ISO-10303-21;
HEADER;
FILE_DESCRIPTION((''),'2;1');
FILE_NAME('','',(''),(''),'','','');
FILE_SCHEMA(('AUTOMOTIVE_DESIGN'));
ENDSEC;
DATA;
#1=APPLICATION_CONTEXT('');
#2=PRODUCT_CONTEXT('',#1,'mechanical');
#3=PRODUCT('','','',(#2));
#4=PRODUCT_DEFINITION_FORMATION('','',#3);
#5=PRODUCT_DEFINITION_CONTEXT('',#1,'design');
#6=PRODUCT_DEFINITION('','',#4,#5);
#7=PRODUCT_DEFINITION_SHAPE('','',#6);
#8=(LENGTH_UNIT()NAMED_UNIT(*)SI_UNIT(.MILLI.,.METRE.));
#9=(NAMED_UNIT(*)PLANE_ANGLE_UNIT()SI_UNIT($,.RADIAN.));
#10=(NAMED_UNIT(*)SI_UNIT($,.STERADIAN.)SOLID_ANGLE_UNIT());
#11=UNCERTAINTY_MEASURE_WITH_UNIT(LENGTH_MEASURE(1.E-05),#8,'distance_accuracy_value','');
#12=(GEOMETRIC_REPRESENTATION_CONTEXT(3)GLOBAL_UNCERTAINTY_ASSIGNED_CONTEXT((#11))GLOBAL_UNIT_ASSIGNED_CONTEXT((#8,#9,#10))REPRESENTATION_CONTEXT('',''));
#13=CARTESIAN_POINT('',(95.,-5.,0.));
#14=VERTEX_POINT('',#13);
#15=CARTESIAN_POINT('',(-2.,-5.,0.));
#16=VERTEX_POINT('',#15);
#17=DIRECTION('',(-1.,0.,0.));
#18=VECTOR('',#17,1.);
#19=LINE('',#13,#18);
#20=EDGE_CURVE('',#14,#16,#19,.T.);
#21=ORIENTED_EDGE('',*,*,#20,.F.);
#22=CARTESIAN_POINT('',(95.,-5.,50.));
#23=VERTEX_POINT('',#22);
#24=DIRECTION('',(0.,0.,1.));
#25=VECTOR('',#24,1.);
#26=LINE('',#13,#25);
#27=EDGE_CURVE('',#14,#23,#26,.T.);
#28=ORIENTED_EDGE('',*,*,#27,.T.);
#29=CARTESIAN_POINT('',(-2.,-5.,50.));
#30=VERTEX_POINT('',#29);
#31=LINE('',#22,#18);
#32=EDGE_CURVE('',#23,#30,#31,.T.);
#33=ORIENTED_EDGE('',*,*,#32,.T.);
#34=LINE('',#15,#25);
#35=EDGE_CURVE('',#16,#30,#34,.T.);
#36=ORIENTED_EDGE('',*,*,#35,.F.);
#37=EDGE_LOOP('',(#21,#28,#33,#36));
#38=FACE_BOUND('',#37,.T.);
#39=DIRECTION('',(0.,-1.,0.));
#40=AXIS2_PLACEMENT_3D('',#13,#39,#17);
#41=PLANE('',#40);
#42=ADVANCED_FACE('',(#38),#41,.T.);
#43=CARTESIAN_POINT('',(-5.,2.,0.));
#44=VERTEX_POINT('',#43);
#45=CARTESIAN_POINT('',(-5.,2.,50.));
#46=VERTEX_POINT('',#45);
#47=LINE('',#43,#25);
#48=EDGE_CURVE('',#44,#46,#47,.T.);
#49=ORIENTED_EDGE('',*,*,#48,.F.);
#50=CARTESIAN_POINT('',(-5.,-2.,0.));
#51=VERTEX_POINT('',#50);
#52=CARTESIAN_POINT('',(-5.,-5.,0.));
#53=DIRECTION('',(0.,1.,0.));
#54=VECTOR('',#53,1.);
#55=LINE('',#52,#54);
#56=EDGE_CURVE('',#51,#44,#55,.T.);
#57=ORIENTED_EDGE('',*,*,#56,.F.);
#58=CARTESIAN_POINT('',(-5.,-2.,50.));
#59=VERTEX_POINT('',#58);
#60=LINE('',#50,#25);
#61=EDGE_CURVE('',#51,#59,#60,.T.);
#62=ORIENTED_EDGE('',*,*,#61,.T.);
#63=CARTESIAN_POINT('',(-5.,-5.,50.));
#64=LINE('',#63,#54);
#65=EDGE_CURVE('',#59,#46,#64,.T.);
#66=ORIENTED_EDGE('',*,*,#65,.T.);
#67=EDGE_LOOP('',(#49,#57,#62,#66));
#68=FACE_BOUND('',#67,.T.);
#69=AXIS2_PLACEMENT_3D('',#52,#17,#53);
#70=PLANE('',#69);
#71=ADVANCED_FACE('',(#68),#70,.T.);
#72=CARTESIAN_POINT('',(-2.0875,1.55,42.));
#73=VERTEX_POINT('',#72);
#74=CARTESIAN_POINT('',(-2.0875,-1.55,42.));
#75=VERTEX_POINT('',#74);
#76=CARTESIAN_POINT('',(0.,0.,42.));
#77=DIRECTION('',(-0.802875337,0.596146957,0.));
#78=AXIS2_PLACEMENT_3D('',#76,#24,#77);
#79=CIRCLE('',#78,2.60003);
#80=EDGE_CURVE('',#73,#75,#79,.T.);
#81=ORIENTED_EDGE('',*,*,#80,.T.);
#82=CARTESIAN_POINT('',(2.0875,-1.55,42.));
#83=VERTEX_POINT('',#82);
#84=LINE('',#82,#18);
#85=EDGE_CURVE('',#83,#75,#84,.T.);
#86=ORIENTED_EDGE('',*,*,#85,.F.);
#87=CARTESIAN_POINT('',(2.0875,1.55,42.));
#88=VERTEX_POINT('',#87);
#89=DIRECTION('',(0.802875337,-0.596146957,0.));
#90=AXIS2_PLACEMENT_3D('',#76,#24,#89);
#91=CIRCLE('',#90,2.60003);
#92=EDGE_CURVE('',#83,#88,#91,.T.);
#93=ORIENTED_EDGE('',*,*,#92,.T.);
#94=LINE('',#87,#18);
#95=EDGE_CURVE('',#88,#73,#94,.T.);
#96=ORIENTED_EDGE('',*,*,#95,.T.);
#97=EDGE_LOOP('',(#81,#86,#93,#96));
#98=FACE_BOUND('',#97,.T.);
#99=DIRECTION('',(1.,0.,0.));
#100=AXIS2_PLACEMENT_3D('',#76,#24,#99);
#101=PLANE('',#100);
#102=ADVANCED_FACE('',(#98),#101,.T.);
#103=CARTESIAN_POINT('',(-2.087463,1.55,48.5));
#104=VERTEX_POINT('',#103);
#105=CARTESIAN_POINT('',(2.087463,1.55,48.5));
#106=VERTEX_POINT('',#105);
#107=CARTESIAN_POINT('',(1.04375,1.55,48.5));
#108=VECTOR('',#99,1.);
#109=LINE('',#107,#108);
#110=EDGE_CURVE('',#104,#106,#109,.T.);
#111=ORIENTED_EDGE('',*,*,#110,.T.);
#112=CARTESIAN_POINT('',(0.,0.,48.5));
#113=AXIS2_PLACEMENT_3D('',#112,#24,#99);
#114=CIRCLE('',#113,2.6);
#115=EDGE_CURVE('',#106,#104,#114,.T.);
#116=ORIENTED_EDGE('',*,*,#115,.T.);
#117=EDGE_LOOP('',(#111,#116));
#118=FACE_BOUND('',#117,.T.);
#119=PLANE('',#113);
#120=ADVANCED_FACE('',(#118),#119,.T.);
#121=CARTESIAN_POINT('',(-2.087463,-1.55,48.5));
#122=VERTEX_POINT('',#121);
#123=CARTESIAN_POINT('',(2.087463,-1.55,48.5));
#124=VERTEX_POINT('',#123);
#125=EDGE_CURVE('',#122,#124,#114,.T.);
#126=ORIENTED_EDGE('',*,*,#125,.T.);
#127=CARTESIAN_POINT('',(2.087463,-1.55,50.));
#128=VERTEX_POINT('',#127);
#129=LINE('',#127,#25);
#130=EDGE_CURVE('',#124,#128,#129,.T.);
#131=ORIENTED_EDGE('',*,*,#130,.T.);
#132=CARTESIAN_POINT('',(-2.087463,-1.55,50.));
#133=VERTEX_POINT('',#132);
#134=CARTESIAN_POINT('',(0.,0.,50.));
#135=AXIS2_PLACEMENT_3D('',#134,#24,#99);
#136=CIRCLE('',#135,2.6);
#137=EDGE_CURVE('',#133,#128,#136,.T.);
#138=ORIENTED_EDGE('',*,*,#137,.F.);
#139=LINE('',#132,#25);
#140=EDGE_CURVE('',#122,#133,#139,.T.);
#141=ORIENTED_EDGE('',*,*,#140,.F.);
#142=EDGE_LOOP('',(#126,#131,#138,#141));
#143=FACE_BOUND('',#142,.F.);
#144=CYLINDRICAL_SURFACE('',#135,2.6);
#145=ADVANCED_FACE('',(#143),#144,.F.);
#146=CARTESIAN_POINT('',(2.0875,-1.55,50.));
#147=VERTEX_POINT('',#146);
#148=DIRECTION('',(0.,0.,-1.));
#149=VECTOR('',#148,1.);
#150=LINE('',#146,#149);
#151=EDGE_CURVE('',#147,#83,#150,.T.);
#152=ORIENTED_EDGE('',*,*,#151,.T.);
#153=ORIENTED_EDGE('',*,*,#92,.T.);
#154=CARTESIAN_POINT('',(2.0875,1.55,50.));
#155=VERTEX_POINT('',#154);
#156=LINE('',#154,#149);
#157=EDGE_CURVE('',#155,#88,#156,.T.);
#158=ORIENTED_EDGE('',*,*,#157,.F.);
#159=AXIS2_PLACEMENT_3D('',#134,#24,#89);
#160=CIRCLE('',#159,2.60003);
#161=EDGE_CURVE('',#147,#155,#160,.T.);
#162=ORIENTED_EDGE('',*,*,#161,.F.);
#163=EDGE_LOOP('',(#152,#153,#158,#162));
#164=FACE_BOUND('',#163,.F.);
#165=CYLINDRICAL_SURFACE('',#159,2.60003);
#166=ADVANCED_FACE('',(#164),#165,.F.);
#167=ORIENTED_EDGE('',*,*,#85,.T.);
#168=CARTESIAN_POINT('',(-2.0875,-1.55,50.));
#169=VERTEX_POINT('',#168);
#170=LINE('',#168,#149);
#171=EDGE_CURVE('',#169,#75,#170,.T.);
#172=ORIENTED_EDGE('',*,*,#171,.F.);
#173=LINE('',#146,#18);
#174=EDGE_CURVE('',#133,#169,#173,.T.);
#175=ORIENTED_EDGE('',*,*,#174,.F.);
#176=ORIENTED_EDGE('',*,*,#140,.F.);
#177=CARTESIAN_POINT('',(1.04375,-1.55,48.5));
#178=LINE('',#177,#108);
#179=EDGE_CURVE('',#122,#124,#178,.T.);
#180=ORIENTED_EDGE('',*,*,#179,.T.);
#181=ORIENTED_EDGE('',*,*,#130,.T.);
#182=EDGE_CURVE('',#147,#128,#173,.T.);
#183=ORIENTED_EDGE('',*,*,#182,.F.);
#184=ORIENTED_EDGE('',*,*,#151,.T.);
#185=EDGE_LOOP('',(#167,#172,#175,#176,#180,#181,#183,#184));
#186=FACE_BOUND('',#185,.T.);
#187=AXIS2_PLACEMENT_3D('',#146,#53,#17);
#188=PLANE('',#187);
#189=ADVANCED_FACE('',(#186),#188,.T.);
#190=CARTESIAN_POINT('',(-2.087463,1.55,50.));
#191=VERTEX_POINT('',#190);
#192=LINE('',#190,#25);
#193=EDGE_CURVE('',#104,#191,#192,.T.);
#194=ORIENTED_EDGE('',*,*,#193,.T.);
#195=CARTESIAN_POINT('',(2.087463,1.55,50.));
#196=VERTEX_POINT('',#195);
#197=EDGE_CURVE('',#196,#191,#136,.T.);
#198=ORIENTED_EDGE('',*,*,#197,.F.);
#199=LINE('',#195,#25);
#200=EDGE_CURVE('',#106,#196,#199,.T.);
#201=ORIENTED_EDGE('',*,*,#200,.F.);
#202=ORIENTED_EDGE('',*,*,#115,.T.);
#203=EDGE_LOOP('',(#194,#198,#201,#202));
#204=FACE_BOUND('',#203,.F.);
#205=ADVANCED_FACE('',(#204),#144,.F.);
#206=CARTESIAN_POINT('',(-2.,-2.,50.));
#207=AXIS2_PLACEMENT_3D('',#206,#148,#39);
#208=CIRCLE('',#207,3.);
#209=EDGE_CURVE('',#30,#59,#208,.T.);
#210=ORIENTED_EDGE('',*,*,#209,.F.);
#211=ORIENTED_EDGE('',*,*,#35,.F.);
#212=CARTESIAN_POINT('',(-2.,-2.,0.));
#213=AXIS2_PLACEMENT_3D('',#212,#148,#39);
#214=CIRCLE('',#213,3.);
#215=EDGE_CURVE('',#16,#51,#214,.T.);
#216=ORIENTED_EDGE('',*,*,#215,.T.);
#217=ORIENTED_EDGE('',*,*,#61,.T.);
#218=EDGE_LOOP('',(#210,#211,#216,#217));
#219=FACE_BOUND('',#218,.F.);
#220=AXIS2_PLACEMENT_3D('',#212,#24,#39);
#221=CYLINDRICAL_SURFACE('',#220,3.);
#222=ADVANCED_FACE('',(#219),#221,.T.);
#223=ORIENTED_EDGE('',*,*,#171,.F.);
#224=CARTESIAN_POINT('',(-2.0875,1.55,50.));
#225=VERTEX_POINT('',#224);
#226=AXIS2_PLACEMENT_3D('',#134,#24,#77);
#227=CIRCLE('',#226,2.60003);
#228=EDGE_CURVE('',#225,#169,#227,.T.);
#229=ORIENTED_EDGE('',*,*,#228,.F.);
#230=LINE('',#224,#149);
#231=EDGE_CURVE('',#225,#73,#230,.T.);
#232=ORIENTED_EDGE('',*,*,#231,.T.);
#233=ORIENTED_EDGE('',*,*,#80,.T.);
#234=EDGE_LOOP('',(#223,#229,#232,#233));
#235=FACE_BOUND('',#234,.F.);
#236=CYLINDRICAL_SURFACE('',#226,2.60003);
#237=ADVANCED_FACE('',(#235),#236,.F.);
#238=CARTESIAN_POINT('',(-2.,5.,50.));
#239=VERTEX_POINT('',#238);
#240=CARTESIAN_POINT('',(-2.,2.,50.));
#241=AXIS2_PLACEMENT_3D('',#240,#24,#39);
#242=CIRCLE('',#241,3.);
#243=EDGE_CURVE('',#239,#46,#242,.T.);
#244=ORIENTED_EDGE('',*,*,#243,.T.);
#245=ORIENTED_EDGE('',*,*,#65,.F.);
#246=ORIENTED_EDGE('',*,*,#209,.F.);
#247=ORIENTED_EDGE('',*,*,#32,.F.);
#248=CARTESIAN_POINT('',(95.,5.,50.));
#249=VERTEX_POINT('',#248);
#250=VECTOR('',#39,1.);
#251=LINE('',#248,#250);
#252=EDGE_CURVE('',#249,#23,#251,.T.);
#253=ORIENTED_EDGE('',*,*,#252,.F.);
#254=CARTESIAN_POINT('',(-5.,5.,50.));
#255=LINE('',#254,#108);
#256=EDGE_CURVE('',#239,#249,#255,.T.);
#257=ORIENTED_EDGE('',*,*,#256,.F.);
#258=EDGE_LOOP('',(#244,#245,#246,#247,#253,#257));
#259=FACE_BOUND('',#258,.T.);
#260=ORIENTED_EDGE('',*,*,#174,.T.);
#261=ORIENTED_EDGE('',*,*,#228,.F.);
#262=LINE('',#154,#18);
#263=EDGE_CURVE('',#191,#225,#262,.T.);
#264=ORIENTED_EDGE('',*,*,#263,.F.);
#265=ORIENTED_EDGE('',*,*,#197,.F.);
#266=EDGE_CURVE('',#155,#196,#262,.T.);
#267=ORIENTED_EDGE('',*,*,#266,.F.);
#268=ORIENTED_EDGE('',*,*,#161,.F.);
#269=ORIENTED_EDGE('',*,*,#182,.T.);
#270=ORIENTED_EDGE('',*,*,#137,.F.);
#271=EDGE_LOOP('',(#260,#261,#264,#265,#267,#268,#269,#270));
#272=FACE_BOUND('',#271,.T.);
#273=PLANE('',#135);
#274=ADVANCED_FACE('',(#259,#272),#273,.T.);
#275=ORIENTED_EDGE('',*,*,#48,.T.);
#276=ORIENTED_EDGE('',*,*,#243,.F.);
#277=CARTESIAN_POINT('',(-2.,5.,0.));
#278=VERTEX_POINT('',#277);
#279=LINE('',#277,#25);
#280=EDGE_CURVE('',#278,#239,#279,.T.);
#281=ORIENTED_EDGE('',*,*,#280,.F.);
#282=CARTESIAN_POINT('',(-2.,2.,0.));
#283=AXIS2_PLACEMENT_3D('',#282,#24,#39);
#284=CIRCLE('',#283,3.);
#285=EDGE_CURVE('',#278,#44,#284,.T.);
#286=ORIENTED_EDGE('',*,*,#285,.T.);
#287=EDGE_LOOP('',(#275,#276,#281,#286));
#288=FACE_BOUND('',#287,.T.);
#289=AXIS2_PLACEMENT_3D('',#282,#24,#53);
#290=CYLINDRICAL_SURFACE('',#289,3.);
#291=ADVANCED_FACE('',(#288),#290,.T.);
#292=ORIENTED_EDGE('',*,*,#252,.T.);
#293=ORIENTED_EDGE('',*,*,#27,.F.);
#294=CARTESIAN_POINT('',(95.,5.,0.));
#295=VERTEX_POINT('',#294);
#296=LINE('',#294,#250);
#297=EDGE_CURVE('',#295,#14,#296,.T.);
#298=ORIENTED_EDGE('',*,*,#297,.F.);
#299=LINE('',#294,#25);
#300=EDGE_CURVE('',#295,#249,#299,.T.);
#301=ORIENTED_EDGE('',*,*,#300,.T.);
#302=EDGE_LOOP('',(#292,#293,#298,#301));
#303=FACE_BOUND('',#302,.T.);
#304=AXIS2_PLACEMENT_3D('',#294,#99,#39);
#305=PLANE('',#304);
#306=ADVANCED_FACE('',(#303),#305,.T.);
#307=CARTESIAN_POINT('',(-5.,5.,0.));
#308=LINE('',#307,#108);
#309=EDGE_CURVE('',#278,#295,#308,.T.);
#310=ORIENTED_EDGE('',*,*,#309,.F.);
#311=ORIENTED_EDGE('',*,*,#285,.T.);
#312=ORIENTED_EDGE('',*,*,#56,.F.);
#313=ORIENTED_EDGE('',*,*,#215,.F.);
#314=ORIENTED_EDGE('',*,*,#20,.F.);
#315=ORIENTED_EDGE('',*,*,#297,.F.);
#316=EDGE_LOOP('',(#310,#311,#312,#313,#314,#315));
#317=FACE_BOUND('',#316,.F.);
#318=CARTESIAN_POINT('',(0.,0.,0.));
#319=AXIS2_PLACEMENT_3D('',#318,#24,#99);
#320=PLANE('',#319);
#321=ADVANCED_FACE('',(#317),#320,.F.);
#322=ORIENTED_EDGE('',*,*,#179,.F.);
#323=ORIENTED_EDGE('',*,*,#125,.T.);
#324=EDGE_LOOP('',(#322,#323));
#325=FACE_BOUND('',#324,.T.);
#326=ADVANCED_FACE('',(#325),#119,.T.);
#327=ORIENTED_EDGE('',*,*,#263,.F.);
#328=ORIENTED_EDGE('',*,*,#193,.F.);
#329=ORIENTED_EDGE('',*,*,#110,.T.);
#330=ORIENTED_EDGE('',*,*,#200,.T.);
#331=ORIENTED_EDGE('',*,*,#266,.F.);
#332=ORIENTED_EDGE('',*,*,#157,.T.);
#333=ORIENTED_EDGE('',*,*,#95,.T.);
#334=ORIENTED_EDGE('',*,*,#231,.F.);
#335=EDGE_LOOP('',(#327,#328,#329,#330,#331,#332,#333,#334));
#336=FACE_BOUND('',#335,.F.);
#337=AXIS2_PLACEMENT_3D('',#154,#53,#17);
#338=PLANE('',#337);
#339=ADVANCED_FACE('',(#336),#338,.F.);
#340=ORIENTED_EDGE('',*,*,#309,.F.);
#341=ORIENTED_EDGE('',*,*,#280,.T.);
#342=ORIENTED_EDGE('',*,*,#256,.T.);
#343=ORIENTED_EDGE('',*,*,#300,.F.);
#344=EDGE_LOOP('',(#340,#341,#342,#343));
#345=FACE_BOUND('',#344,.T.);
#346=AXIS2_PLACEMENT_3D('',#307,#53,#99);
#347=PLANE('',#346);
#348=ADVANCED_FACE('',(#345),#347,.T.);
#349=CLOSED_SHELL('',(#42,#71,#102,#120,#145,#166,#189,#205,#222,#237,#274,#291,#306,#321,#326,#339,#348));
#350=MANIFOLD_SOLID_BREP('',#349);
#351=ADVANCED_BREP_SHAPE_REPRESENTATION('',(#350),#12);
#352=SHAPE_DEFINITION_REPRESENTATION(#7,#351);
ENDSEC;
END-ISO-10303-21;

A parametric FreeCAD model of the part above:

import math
import FreeCAD as App
import Part
import Sketcher

V = App.Vector
Q = App.Units.Quantity


def edges_at(feature, points):
    """Names of the edges that pass closest to the given points."""
    edges = feature.Shape.Edges
    near = lambda p: min(range(len(edges)), key=lambda i: edges[i].distToShape(Part.Vertex(*p))[0])
    return sorted({f"Edge{near(p) + 1}" for p in points})

doc = App.newDocument("Part")
body = doc.addObject("PartDesign::Body", "Body")

sketch1 = body.newObject("Sketcher::SketchObject", "Sketch")
sketch1.AttachmentSupport = (doc.getObject("XY_Plane"), [""])
sketch1.MapMode = "FlatFace"
sketch1.addGeometry(Part.LineSegment(V(95, 5, 0), V(-5, 5, 0)), False)
sketch1.addGeometry(Part.LineSegment(V(-5, 5, 0), V(-5, -5, 0)), False)
sketch1.addGeometry(Part.LineSegment(V(-5, -5, 0), V(95, -5, 0)), False)
sketch1.addGeometry(Part.LineSegment(V(95, -5, 0), V(95, 5, 0)), False)
sketch1.addConstraint(Sketcher.Constraint("Coincident", 0, 2, 1, 1))
sketch1.addConstraint(Sketcher.Constraint("Coincident", 1, 2, 2, 1))
sketch1.addConstraint(Sketcher.Constraint("Coincident", 2, 2, 3, 1))
sketch1.addConstraint(Sketcher.Constraint("Coincident", 3, 2, 0, 1))
sketch1.addConstraint(Sketcher.Constraint("Horizontal", 0))
sketch1.addConstraint(Sketcher.Constraint("Vertical", 1))
sketch1.addConstraint(Sketcher.Constraint("Horizontal", 2))
sketch1.addConstraint(Sketcher.Constraint("Vertical", 3))
sketch1.addConstraint(Sketcher.Constraint("DistanceX", 0, 2, 0, 1, Q("100 mm")))
sketch1.addConstraint(Sketcher.Constraint("DistanceY", 1, 2, 1, 1, Q("10 mm")))
sketch1.addConstraint(Sketcher.Constraint("DistanceX", 0, 2, -1, 1, Q("5 mm")))
sketch1.addConstraint(Sketcher.Constraint("DistanceY", -1, 1, 0, 2, Q("5 mm")))
pad1 = body.newObject("PartDesign::Pad", "Pad")
pad1.Profile = sketch1
pad1.Length = 50
doc.recompute()

fillet = body.newObject("PartDesign::Fillet", "Fillet")
fillet.Base = (pad1, edges_at(pad1, [(-5, -5, 25), (-5, 5, 25)]))
fillet.Radius = 3

sketch2 = body.newObject("Sketcher::SketchObject", "Sketch001")
sketch2.AttachmentSupport = (doc.getObject("XY_Plane"), [""])
sketch2.MapMode = "FlatFace"
sketch2.AttachmentOffset = App.Placement(V(0, 0, 50), App.Rotation())
sketch2.addGeometry(Part.LineSegment(V(-2.1, -1.6, 0), V(2.1, -1.6, 0)), False)
sketch2.addGeometry(Part.ArcOfCircle(Part.Circle(V(0, 0, 0), V(0, 0, 1), 2.6), math.radians(-37), math.radians(37)), False)
sketch2.addGeometry(Part.LineSegment(V(2.1, 1.6, 0), V(-2.1, 1.6, 0)), False)
sketch2.addGeometry(Part.ArcOfCircle(Part.Circle(V(0, 0, 0), V(0, 0, 1), 2.6), math.radians(143), math.radians(217)), False)
sketch2.addConstraint(Sketcher.Constraint("Coincident", 0, 2, 1, 1))
sketch2.addConstraint(Sketcher.Constraint("Coincident", 1, 2, 2, 1))
sketch2.addConstraint(Sketcher.Constraint("Coincident", 2, 2, 3, 1))
sketch2.addConstraint(Sketcher.Constraint("Coincident", 3, 2, 0, 1))
sketch2.addConstraint(Sketcher.Constraint("Horizontal", 0))
sketch2.addConstraint(Sketcher.Constraint("Horizontal", 2))
sketch2.addConstraint(Sketcher.Constraint("Coincident", 1, 3, -1, 1))
sketch2.addConstraint(Sketcher.Constraint("Coincident", 3, 3, -1, 1))
sketch2.addConstraint(Sketcher.Constraint("Equal", 1, 3))
sketch2.addConstraint(Sketcher.Constraint("Vertical", 0, 2, 1, 2))
sketch2.addConstraint(Sketcher.Constraint("Radius", 1, Q("2.6 mm")))
sketch2.addConstraint(Sketcher.Constraint("DistanceY", 0, 2, 1, 2, Q("3.1 mm")))
pocket1 = body.newObject("PartDesign::Pocket", "Pocket")
pocket1.Profile = sketch2
pocket1.Length = 8

sketch3 = body.newObject("Sketcher::SketchObject", "Sketch002")
sketch3.AttachmentSupport = (doc.getObject("XY_Plane"), [""])
sketch3.MapMode = "FlatFace"
sketch3.AttachmentOffset = App.Placement(V(0, 0, 50), App.Rotation())
sketch3.addGeometry(Part.Circle(V(0, 0, 0), V(0, 0, 1), 2.6), False)
sketch3.addConstraint(Sketcher.Constraint("Coincident", 0, 3, -1, 1))
sketch3.addConstraint(Sketcher.Constraint("Diameter", 0, Q("5.2 mm")))
pocket2 = body.newObject("PartDesign::Pocket", "Pocket001")
pocket2.Profile = sketch3
pocket2.Length = 1.5

doc.recompute()
